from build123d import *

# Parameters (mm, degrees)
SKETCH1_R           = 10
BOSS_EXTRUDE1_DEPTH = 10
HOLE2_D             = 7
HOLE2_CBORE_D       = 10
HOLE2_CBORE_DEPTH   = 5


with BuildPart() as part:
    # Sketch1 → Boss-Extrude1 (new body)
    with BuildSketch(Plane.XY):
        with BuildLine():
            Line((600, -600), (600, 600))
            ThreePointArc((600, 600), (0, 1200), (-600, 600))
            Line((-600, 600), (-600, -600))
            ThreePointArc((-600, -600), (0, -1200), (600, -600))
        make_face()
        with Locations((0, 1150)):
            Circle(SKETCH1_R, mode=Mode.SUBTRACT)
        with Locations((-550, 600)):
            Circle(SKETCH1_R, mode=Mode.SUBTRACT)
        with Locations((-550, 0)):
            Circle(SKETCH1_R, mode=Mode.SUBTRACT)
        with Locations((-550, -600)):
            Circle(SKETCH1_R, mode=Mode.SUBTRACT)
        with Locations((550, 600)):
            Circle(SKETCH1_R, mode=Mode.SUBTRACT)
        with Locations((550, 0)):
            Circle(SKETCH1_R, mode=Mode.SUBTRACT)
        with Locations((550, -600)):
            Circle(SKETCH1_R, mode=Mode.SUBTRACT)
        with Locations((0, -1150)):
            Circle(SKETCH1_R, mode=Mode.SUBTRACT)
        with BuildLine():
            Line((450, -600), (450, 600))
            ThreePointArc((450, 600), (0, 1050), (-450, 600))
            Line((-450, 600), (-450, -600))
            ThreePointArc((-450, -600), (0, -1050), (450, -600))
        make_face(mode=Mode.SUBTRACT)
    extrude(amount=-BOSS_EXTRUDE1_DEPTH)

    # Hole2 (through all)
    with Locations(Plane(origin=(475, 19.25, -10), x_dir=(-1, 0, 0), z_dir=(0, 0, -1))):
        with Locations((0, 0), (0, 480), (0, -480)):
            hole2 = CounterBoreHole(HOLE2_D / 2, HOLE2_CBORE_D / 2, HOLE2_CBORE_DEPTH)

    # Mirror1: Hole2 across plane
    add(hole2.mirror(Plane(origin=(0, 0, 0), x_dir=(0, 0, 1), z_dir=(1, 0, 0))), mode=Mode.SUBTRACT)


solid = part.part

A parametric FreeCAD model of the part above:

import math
import FreeCAD as App
import Part
import Sketcher

V = App.Vector

doc = App.newDocument("Part")
body = doc.addObject("PartDesign::Body", "Body")

sketch1 = body.newObject("Sketcher::SketchObject", "Sketch")
sketch1.AttachmentSupport = (doc.getObject("XY_Plane"), [""])
sketch1.MapMode = "FlatFace"
sketch1.addGeometry([
    Part.LineSegment(V(600, -600, 0), V(600, 600, 0)),
    Part.ArcOfCircle(Part.Circle(V(0, 600, 0), V(0, 0, 1), 600), math.radians(0), math.radians(180)),
    Part.LineSegment(V(-600, 600, 0), V(-600, -600, 0)),
    Part.ArcOfCircle(Part.Circle(V(0, -600, 0), V(0, 0, 1), 600), math.radians(180), math.radians(360)),
    Part.Circle(V(-550, -600, 0), V(0, 0, 1), 10),
    Part.Circle(V(0, -1150, 0), V(0, 0, 1), 10),
    Part.Circle(V(550, -600, 0), V(0, 0, 1), 10),
    Part.Circle(V(-550, 0, 0), V(0, 0, 1), 10),
    Part.Circle(V(-550, 600, 0), V(0, 0, 1), 10),
    Part.LineSegment(V(450, 600, 0), V(450, -600, 0)),
    Part.ArcOfCircle(Part.Circle(V(0, -600, 0), V(0, 0, 1), 450), math.radians(180), math.radians(360)),
    Part.LineSegment(V(-450, -600, 0), V(-450, 600, 0)),
    Part.ArcOfCircle(Part.Circle(V(0, 600, 0), V(0, 0, 1), 450), math.radians(0), math.radians(180)),
    Part.Circle(V(550, 0, 0), V(0, 0, 1), 10),
    Part.Circle(V(0, 1150, 0), V(0, 0, 1), 10),
    Part.Circle(V(550, 600, 0), V(0, 0, 1), 10),
], False)
sketch1.addConstraint([
    Sketcher.Constraint("Tangent", 0, 2, 1, 1),
    Sketcher.Constraint("Tangent", 1, 2, 2, 1),
    Sketcher.Constraint("Tangent", 2, 2, 3, 1),
    Sketcher.Constraint("Tangent", 3, 2, 0, 1),
    Sketcher.Constraint("Tangent", 9, 2, 10, 2),
    Sketcher.Constraint("Tangent", 10, 1, 11, 1),
    Sketcher.Constraint("Tangent", 11, 2, 12, 2),
    Sketcher.Constraint("Tangent", 12, 1, 9, 1),
    Sketcher.Constraint("Vertical", 0),
    Sketcher.Constraint("Vertical", 2),
    Sketcher.Constraint("Vertical", 9),
    Sketcher.Constraint("Vertical", 11),
    Sketcher.Constraint("Coincident", 10, 3, 3, 3),
    Sketcher.Constraint("Equal", 4, 5),
    Sketcher.Constraint("Equal", 5, 6),
    Sketcher.Constraint("Equal", 6, 7),
    Sketcher.Constraint("Equal", 7, 8),
    Sketcher.Constraint("Equal", 8, 13),
    Sketcher.Constraint("Equal", 13, 14),
    Sketcher.Constraint("Equal", 14, 15),
    Sketcher.Constraint("Symmetric", 1, 3, 3, 3, -1, 1),
    Sketcher.Constraint("Symmetric", 6, 3, 8, 3, -1, 1),
    Sketcher.Constraint("Symmetric", 7, 3, 13, 3, -1, 1),
    Sketcher.Constraint("Symmetric", 5, 3, 14, 3, -1, 1),
    Sketcher.Constraint("Symmetric", 4, 3, 15, 3, -1, 1),
    Sketcher.Constraint("Symmetric", 4, 3, 6, 3, -2),
    Sketcher.Constraint("PointOnObject", 5, 3, -2),
    Sketcher.Constraint("PointOnObject", 7, 3, -1),
    Sketcher.Constraint("Horizontal", 3, 3, 4, 3),
    Sketcher.Constraint("Horizontal", 8, 3, 12, 3),
    Sketcher.Constraint("Vertical", 4, 3, 7, 3),
    Sketcher.Constraint("Diameter", 4, 20.0),
    Sketcher.Constraint("Radius", 1, 600.0),
    Sketcher.Constraint("Radius", 10, 450.0),
    Sketcher.Constraint("DistanceY", 0, 1, 0, 2, 1200.0),
    Sketcher.Constraint("DistanceX", 4, 3, -1, 1, 550.0),
    Sketcher.Constraint("DistanceY", 5, 3, -1, 1, 1150.0),
])
pad1 = body.newObject("PartDesign::Pad", "Pad")
pad1.Profile = sketch1
pad1.Length = 10
pad1.Reversed = True

sketch2 = body.newObject("Sketcher::SketchObject", "Sketch001")
sketch2.AttachmentSupport = (doc.getObject("XY_Plane"), [""])
sketch2.MapMode = "FlatFace"
sketch2.AttachmentOffset = App.Placement(V(0, 0, -10), App.Rotation())
sketch2.addGeometry([
    Part.Circle(V(475, 19.2, 0), V(0, 0, 1), 3.5),
    Part.Circle(V(475, 499.2, 0), V(0, 0, 1), 3.5),
    Part.Circle(V(475, -460.8, 0), V(0, 0, 1), 3.5),
], False)
sketch2.addConstraint([
    Sketcher.Constraint("Equal", 0, 1),
    Sketcher.Constraint("Equal", 1, 2),
    Sketcher.Constraint("Vertical", 0, 3, 1, 3),
    Sketcher.Constraint("Vertical", 1, 3, 2, 3),
    Sketcher.Constraint("Diameter", 0, 7.0),
    Sketcher.Constraint("DistanceX", -1, 1, 0, 3, 475.0),
    Sketcher.Constraint("DistanceY", 0, 3, 1, 3, 480.0),
    Sketcher.Constraint("DistanceY", 2, 3, 0, 3, 480.0),
    Sketcher.Constraint("DistanceY", -1, 1, 0, 3, 19.25),
])
doc.recompute()
hole = body.newObject("PartDesign::Hole", "Hole")
hole.Profile = sketch2
hole.ThreadType = "None"
hole.Diameter = 7
hole.DepthType = "ThroughAll"
hole.HoleCutType = "Counterbore"
hole.HoleCutDiameter = 10
hole.HoleCutDepth = 5
hole.Reversed = True
doc.recompute()

mirrored = body.newObject("PartDesign::Mirrored", "Mirrored")
mirrored.Originals = [hole]
mirrored.MirrorPlane = (doc.getObject("YZ_Plane"), [""])
body.Tip = mirrored

doc.recompute()
